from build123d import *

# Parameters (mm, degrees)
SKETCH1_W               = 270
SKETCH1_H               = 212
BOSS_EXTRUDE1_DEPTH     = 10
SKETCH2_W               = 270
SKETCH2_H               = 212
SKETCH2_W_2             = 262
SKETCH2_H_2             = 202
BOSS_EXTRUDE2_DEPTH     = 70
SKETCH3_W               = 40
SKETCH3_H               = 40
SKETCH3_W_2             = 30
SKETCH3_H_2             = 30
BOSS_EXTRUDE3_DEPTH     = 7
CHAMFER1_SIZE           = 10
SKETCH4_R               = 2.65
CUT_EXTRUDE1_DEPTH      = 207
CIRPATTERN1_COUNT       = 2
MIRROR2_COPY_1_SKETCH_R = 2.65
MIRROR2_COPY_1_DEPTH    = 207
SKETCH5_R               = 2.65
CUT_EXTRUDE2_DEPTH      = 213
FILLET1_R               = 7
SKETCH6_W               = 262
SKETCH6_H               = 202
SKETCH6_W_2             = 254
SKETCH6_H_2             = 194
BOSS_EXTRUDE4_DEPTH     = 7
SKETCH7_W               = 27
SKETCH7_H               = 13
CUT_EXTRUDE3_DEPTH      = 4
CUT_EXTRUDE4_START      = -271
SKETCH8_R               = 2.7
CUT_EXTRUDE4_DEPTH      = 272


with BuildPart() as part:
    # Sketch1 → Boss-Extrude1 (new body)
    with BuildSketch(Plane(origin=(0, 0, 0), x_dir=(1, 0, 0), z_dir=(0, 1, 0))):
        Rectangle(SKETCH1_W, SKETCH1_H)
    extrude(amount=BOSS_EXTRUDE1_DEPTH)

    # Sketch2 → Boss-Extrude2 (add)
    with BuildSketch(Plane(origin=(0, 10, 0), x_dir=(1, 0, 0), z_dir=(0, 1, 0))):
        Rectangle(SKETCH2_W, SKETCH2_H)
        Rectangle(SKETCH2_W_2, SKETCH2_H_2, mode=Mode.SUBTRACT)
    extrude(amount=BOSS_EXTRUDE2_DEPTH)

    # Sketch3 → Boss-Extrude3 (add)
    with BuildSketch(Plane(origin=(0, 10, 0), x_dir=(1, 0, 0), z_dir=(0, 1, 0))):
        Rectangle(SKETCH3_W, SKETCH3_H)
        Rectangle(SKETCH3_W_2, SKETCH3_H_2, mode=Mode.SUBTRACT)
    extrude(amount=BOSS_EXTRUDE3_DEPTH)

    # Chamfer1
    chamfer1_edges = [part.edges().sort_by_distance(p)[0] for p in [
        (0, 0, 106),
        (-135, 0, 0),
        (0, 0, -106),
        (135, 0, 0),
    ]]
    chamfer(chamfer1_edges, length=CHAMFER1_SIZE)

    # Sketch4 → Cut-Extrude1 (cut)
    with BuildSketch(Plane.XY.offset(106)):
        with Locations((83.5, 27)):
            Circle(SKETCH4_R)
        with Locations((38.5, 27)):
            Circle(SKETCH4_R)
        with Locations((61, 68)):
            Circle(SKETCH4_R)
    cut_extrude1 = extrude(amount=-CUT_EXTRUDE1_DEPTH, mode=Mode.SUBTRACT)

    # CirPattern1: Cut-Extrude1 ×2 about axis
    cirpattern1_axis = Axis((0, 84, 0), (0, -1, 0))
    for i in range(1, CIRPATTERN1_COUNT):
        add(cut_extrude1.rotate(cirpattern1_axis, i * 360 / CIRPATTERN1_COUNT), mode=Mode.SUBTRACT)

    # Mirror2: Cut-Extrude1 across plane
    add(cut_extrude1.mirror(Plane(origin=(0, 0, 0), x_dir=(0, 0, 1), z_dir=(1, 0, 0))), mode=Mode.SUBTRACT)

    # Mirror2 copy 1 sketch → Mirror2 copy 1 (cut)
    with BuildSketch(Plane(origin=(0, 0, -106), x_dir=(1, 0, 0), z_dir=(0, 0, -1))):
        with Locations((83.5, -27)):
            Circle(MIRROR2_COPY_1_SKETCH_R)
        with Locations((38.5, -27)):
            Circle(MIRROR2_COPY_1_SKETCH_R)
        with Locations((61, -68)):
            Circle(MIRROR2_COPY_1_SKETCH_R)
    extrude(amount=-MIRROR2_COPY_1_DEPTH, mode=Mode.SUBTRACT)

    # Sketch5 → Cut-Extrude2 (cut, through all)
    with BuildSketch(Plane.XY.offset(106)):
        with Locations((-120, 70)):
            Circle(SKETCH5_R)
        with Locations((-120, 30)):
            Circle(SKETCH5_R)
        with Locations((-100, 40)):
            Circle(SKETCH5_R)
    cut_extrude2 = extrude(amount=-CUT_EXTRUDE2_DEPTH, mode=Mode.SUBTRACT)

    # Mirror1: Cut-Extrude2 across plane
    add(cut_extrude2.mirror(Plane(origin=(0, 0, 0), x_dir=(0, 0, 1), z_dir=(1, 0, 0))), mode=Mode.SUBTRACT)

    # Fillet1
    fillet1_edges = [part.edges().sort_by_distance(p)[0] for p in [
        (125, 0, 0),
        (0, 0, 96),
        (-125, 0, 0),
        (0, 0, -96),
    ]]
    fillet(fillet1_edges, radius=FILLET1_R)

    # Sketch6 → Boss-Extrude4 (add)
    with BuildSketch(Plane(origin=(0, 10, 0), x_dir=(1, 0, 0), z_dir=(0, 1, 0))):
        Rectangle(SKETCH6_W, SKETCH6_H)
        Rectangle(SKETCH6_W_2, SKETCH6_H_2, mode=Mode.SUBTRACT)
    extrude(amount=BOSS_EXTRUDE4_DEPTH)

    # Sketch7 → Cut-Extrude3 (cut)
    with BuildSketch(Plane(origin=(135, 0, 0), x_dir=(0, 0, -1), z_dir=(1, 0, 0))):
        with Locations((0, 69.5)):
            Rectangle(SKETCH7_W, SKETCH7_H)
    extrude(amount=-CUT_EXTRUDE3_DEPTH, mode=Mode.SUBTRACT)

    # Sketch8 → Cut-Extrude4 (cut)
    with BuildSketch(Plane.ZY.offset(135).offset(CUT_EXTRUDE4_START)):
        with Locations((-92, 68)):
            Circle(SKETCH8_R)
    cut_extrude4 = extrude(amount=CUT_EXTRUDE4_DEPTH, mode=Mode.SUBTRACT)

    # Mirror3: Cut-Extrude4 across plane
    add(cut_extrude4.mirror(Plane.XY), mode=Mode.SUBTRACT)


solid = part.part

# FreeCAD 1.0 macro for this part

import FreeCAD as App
import Part
import Sketcher
Q = App.Units.Quantity


def edges_at(feature, points):
    """Names of the edges that pass closest to the given points."""
    edges = feature.Shape.Edges
    near = lambda p: min(range(len(edges)), key=lambda i: edges[i].distToShape(Part.Vertex(*p))[0])
    return sorted({f"Edge{near(p) + 1}" for p in points})

doc = App.newDocument("Part")
body = doc.addObject("PartDesign::Body", "Body")

sketch1 = body.newObject("Sketcher::SketchObject", "Sketch")
sketch1.AttachmentSupport = (doc.getObject("XZ_Plane"), [""])
sketch1.MapMode = "FlatFace"
sketch1.addGeometry([
    Part.LineSegment(App.Vector(-135, -106, 0), App.Vector(-135, 106, 0)),
    Part.LineSegment(App.Vector(-135, 106, 0), App.Vector(135, 106, 0)),
    Part.LineSegment(App.Vector(135, 106, 0), App.Vector(135, -106, 0)),
    Part.LineSegment(App.Vector(135, -106, 0), App.Vector(-135, -106, 0)),
], False)
sketch1.addConstraint([
    Sketcher.Constraint("Coincident", 0, 2, 1, 1),
    Sketcher.Constraint("Coincident", 1, 2, 2, 1),
    Sketcher.Constraint("Coincident", 2, 2, 3, 1),
    Sketcher.Constraint("Coincident", 3, 2, 0, 1),
    Sketcher.Constraint("Vertical", 0),
    Sketcher.Constraint("Horizontal", 1),
    Sketcher.Constraint("Vertical", 2),
    Sketcher.Constraint("Horizontal", 3),
    Sketcher.Constraint("Symmetric", 0, 2, 2, 2, -1, 1),
    Sketcher.Constraint("DistanceX", 1, 1, 1, 2, Q("270 mm")),
    Sketcher.Constraint("DistanceY", 0, 1, 0, 2, Q("212 mm")),
])
pad1 = body.newObject("PartDesign::Pad", "Pad")
pad1.Profile = sketch1
pad1.Length = 10
pad1.Reversed = True

sketch2 = body.newObject("Sketcher::SketchObject", "Sketch001")
sketch2.AttachmentSupport = (doc.getObject("XZ_Plane"), [""])
sketch2.MapMode = "FlatFace"
sketch2.AttachmentOffset = App.Placement(App.Vector(0, 0, -10), App.Rotation())
sketch2.addGeometry([
    Part.LineSegment(App.Vector(-135, -106, 0), App.Vector(-135, 106, 0)),
    Part.LineSegment(App.Vector(-135, 106, 0), App.Vector(135, 106, 0)),
    Part.LineSegment(App.Vector(135, 106, 0), App.Vector(135, -106, 0)),
    Part.LineSegment(App.Vector(135, -106, 0), App.Vector(-135, -106, 0)),
    Part.LineSegment(App.Vector(131, 101, 0), App.Vector(-131, 101, 0)),
    Part.LineSegment(App.Vector(-131, 101, 0), App.Vector(-131, -101, 0)),
    Part.LineSegment(App.Vector(-131, -101, 0), App.Vector(131, -101, 0)),
    Part.LineSegment(App.Vector(131, -101, 0), App.Vector(131, 101, 0)),
], False)
sketch2.addConstraint([
    Sketcher.Constraint("Coincident", 0, 2, 1, 1),
    Sketcher.Constraint("Coincident", 1, 2, 2, 1),
    Sketcher.Constraint("Coincident", 2, 2, 3, 1),
    Sketcher.Constraint("Coincident", 3, 2, 0, 1),
    Sketcher.Constraint("Coincident", 4, 2, 5, 1),
    Sketcher.Constraint("Coincident", 5, 2, 6, 1),
    Sketcher.Constraint("Coincident", 6, 2, 7, 1),
    Sketcher.Constraint("Coincident", 7, 2, 4, 1),
    Sketcher.Constraint("Vertical", 0),
    Sketcher.Constraint("Horizontal", 1),
    Sketcher.Constraint("Vertical", 2),
    Sketcher.Constraint("Horizontal", 3),
    Sketcher.Constraint("Horizontal", 4),
    Sketcher.Constraint("Vertical", 5),
    Sketcher.Constraint("Horizontal", 6),
    Sketcher.Constraint("Vertical", 7),
    Sketcher.Constraint("Symmetric", 0, 2, 2, 2, -1, 1),
    Sketcher.Constraint("Symmetric", 4, 2, 6, 2, -1, 1),
    Sketcher.Constraint("DistanceX", 1, 1, 1, 2, Q("270 mm")),
    Sketcher.Constraint("DistanceX", 4, 2, 4, 1, Q("262 mm")),
    Sketcher.Constraint("DistanceY", 0, 1, 0, 2, Q("212 mm")),
    Sketcher.Constraint("DistanceY", 5, 2, 5, 1, Q("202 mm")),
])
pad2 = body.newObject("PartDesign::Pad", "Pad001")
pad2.Profile = sketch2
pad2.Length = 70
pad2.Reversed = True

sketch3 = body.newObject("Sketcher::SketchObject", "Sketch002")
sketch3.AttachmentSupport = (doc.getObject("XZ_Plane"), [""])
sketch3.MapMode = "FlatFace"
sketch3.AttachmentOffset = App.Placement(App.Vector(0, 0, -10), App.Rotation())
sketch3.addGeometry([
    Part.LineSegment(App.Vector(-20, -20, 0), App.Vector(-20, 20, 0)),
    Part.LineSegment(App.Vector(-20, 20, 0), App.Vector(20, 20, 0)),
    Part.LineSegment(App.Vector(20, 20, 0), App.Vector(20, -20, 0)),
    Part.LineSegment(App.Vector(20, -20, 0), App.Vector(-20, -20, 0)),
    Part.LineSegment(App.Vector(15, 15, 0), App.Vector(-15, 15, 0)),
    Part.LineSegment(App.Vector(-15, 15, 0), App.Vector(-15, -15, 0)),
    Part.LineSegment(App.Vector(-15, -15, 0), App.Vector(15, -15, 0)),
    Part.LineSegment(App.Vector(15, -15, 0), App.Vector(15, 15, 0)),
], False)
sketch3.addConstraint([
    Sketcher.Constraint("Coincident", 0, 2, 1, 1),
    Sketcher.Constraint("Coincident", 1, 2, 2, 1),
    Sketcher.Constraint("Coincident", 2, 2, 3, 1),
    Sketcher.Constraint("Coincident", 3, 2, 0, 1),
    Sketcher.Constraint("Coincident", 4, 2, 5, 1),
    Sketcher.Constraint("Coincident", 5, 2, 6, 1),
    Sketcher.Constraint("Coincident", 6, 2, 7, 1),
    Sketcher.Constraint("Coincident", 7, 2, 4, 1),
    Sketcher.Constraint("Vertical", 0),
    Sketcher.Constraint("Horizontal", 1),
    Sketcher.Constraint("Vertical", 2),
    Sketcher.Constraint("Horizontal", 3),
    Sketcher.Constraint("Horizontal", 4),
    Sketcher.Constraint("Vertical", 5),
    Sketcher.Constraint("Horizontal", 6),
    Sketcher.Constraint("Vertical", 7),
    Sketcher.Constraint("Symmetric", 0, 2, 2, 2, -1, 1),
    Sketcher.Constraint("Symmetric", 4, 2, 6, 2, -1, 1),
    Sketcher.Constraint("Equal", 3, 0),
    Sketcher.Constraint("Equal", 6, 5),
    Sketcher.Constraint("DistanceX", 1, 1, 1, 2, Q("40 mm")),
    Sketcher.Constraint("DistanceX", 4, 2, 4, 1, Q("30 mm")),
])
pad3 = body.newObject("PartDesign::Pad", "Pad002")
pad3.Profile = sketch3
pad3.Length = 7
pad3.Reversed = True
doc.recompute()

chamfer = body.newObject("PartDesign::Chamfer", "Chamfer")
chamfer.Base = (pad3, edges_at(pad3, [
    (0, 0, 106),
    (-135, 0, 0),
    (0, 0, -106),
    (135, 0, 0),
]))
chamfer.Size = 10

sketch4 = body.newObject("Sketcher::SketchObject", "Sketch003")
sketch4.AttachmentSupport = (doc.getObject("XY_Plane"), [""])
sketch4.MapMode = "FlatFace"
sketch4.AttachmentOffset = App.Placement(App.Vector(0, 0, 106), App.Rotation())
sketch4.addGeometry([
    Part.Circle(App.Vector(83.5, 27, 0), App.Vector(0, 0, 1), 2.65),
    Part.Circle(App.Vector(38.5, 27, 0), App.Vector(0, 0, 1), 2.65),
    Part.Circle(App.Vector(61, 68, 0), App.Vector(0, 0, 1), 2.65),
], False)
sketch4.addConstraint([
    Sketcher.Constraint("Equal", 0, 1),
    Sketcher.Constraint("Equal", 1, 2),
    Sketcher.Constraint("Horizontal", 0, 3, 1, 3),
    Sketcher.Constraint("Diameter", 0, Q("5.3 mm")),
    Sketcher.Constraint("DistanceY", -1, 1, 0, 3, Q("27 mm")),
    Sketcher.Constraint("DistanceX", -1, 1, 2, 3, Q("61 mm")),
    Sketcher.Constraint("DistanceY", -1, 1, 2, 3, Q("68 mm")),
    Sketcher.Constraint("DistanceX", 1, 3, 0, 3, Q("45 mm")),
    Sketcher.Constraint("DistanceX", -1, 1, 0, 3, Q("83.5 mm")),
])
pocket1 = body.newObject("PartDesign::Pocket", "Pocket")
pocket1.Profile = sketch4
pocket1.Length = 207
doc.recompute()

polarpattern = body.newObject("PartDesign::PolarPattern", "PolarPattern")
polarpattern.Originals = [pocket1]
polarpattern.Axis = (doc.getObject("Y_Axis"), [""])
polarpattern.Angle = 360
polarpattern.Occurrences = 2
body.Tip = polarpattern
doc.recompute()

mirrored = body.newObject("PartDesign::Mirrored", "Mirrored")
mirrored.Originals = [pocket1]
mirrored.MirrorPlane = (doc.getObject("YZ_Plane"), [""])
body.Tip = mirrored

sketch5 = body.newObject("Sketcher::SketchObject", "Sketch004")
sketch5.AttachmentSupport = (doc.getObject("XY_Plane"), [""])
sketch5.MapMode = "FlatFace"
sketch5.AttachmentOffset = App.Placement(App.Vector(0, 0, -106), App.Rotation())
sketch5.addGeometry([
    Part.Circle(App.Vector(83.5, 27, 0), App.Vector(0, 0, 1), 2.65),
    Part.Circle(App.Vector(38.5, 27, 0), App.Vector(0, 0, 1), 2.65),
    Part.Circle(App.Vector(61, 68, 0), App.Vector(0, 0, 1), 2.65),
], False)
sketch5.addConstraint([
    Sketcher.Constraint("Equal", 0, 1),
    Sketcher.Constraint("Equal", 1, 2),
    Sketcher.Constraint("Horizontal", 0, 3, 1, 3),
    Sketcher.Constraint("Diameter", 0, Q("5.3 mm")),
    Sketcher.Constraint("DistanceY", -1, 1, 0, 3, Q("27 mm")),
    Sketcher.Constraint("DistanceX", -1, 1, 2, 3, Q("61 mm")),
    Sketcher.Constraint("DistanceY", -1, 1, 2, 3, Q("68 mm")),
    Sketcher.Constraint("DistanceX", 1, 3, 0, 3, Q("45 mm")),
    Sketcher.Constraint("DistanceX", -1, 1, 0, 3, Q("83.5 mm")),
])
pocket2 = body.newObject("PartDesign::Pocket", "Pocket001")
pocket2.Profile = sketch5
pocket2.Length = 207
pocket2.Reversed = True

sketch6 = body.newObject("Sketcher::SketchObject", "Sketch005")
sketch6.AttachmentSupport = (doc.getObject("XY_Plane"), [""])
sketch6.MapMode = "FlatFace"
sketch6.AttachmentOffset = App.Placement(App.Vector(0, 0, 106), App.Rotation())
sketch6.addGeometry([
    Part.Circle(App.Vector(-120, 70, 0), App.Vector(0, 0, 1), 2.65),
    Part.Circle(App.Vector(-120, 30, 0), App.Vector(0, 0, 1), 2.65),
    Part.Circle(App.Vector(-100, 40, 0), App.Vector(0, 0, 1), 2.65),
], False)
sketch6.addConstraint([
    Sketcher.Constraint("Equal", 0, 1),
    Sketcher.Constraint("Equal", 1, 2),
    Sketcher.Constraint("Vertical", 0, 3, 1, 3),
    Sketcher.Constraint("Diameter", 0, Q("5.3 mm")),
    Sketcher.Constraint("DistanceX", 0, 3, -1, 1, Q("120 mm")),
    Sketcher.Constraint("DistanceY", -1, 1, 0, 3, Q("70 mm")),
    Sketcher.Constraint("DistanceY", -1, 1, 1, 3, Q("30 mm")),
    Sketcher.Constraint("DistanceX", 2, 3, -1, 1, Q("100 mm")),
    Sketcher.Constraint("DistanceY", -1, 1, 2, 3, Q("40 mm")),
])
pocket3 = body.newObject("PartDesign::Pocket", "Pocket002")
pocket3.Profile = sketch6
pocket3.Type = "ThroughAll"
doc.recompute()

mirrored2 = body.newObject("PartDesign::Mirrored", "Mirrored001")
mirrored2.Originals = [pocket3]
mirrored2.MirrorPlane = (doc.getObject("YZ_Plane"), [""])
body.Tip = mirrored2
doc.recompute()

fillet = body.newObject("PartDesign::Fillet", "Fillet")
fillet.Base = (mirrored2, edges_at(mirrored2, [
    (125, 0, 0),
    (0, 0, 96),
    (-125, 0, 0),
    (0, 0, -96),
]))
fillet.Radius = 7

sketch7 = body.newObject("Sketcher::SketchObject", "Sketch006")
sketch7.AttachmentSupport = (doc.getObject("XZ_Plane"), [""])
sketch7.MapMode = "FlatFace"
sketch7.AttachmentOffset = App.Placement(App.Vector(0, 0, -10), App.Rotation())
sketch7.addGeometry([
    Part.LineSegment(App.Vector(-131, -101, 0), App.Vector(-131, 101, 0)),
    Part.LineSegment(App.Vector(-131, 101, 0), App.Vector(131, 101, 0)),
    Part.LineSegment(App.Vector(131, 101, 0), App.Vector(131, -101, 0)),
    Part.LineSegment(App.Vector(131, -101, 0), App.Vector(-131, -101, 0)),
    Part.LineSegment(App.Vector(127, 97, 0), App.Vector(-127, 97, 0)),
    Part.LineSegment(App.Vector(-127, 97, 0), App.Vector(-127, -97, 0)),
    Part.LineSegment(App.Vector(-127, -97, 0), App.Vector(127, -97, 0)),
    Part.LineSegment(App.Vector(127, -97, 0), App.Vector(127, 97, 0)),
], False)
sketch7.addConstraint([
    Sketcher.Constraint("Coincident", 0, 2, 1, 1),
    Sketcher.Constraint("Coincident", 1, 2, 2, 1),
    Sketcher.Constraint("Coincident", 2, 2, 3, 1),
    Sketcher.Constraint("Coincident", 3, 2, 0, 1),
    Sketcher.Constraint("Coincident", 4, 2, 5, 1),
    Sketcher.Constraint("Coincident", 5, 2, 6, 1),
    Sketcher.Constraint("Coincident", 6, 2, 7, 1),
    Sketcher.Constraint("Coincident", 7, 2, 4, 1),
    Sketcher.Constraint("Vertical", 0),
    Sketcher.Constraint("Horizontal", 1),
    Sketcher.Constraint("Vertical", 2),
    Sketcher.Constraint("Horizontal", 3),
    Sketcher.Constraint("Horizontal", 4),
    Sketcher.Constraint("Vertical", 5),
    Sketcher.Constraint("Horizontal", 6),
    Sketcher.Constraint("Vertical", 7),
    Sketcher.Constraint("Symmetric", 0, 2, 2, 2, -1, 1),
    Sketcher.Constraint("Symmetric", 4, 2, 6, 2, -1, 1),
    Sketcher.Constraint("DistanceX", 1, 1, 1, 2, Q("262 mm")),
    Sketcher.Constraint("DistanceX", 4, 2, 4, 1, Q("254 mm")),
    Sketcher.Constraint("DistanceY", 0, 1, 0, 2, Q("202 mm")),
    Sketcher.Constraint("DistanceY", 5, 2, 5, 1, Q("194 mm")),
])
pad4 = body.newObject("PartDesign::Pad", "Pad003")
pad4.Profile = sketch7
pad4.Length = 7
pad4.Reversed = True

sketch8 = body.newObject("Sketcher::SketchObject", "Sketch007")
sketch8.AttachmentSupport = (doc.getObject("YZ_Plane"), [""])
sketch8.MapMode = "FlatFace"
sketch8.AttachmentOffset = App.Placement(App.Vector(0, 0, 135), App.Rotation())
sketch8.addGeometry([
    Part.LineSegment(App.Vector(76, 13.5, 0), App.Vector(63, 13.5, 0)),
    Part.LineSegment(App.Vector(63, 13.5, 0), App.Vector(63, -13.5, 0)),
    Part.LineSegment(App.Vector(63, -13.5, 0), App.Vector(76, -13.5, 0)),
    Part.LineSegment(App.Vector(76, -13.5, 0), App.Vector(76, 13.5, 0)),
], False)
sketch8.addConstraint([
    Sketcher.Constraint("Coincident", 0, 2, 1, 1),
    Sketcher.Constraint("Coincident", 1, 2, 2, 1),
    Sketcher.Constraint("Coincident", 2, 2, 3, 1),
    Sketcher.Constraint("Coincident", 3, 2, 0, 1),
    Sketcher.Constraint("Horizontal", 0),
    Sketcher.Constraint("Vertical", 1),
    Sketcher.Constraint("Horizontal", 2),
    Sketcher.Constraint("Vertical", 3),
    Sketcher.Constraint("DistanceX", 0, 2, 0, 1, Q("13 mm")),
    Sketcher.Constraint("DistanceY", 1, 2, 1, 1, Q("27 mm")),
    Sketcher.Constraint("DistanceX", -1, 1, 0, 2, Q("63 mm")),
    Sketcher.Constraint("DistanceY", -1, 1, 0, 2, Q("13.5 mm")),
])
pocket4 = body.newObject("PartDesign::Pocket", "Pocket003")
pocket4.Profile = sketch8
pocket4.Length = 4

sketch9 = body.newObject("Sketcher::SketchObject", "Sketch008")
sketch9.AttachmentSupport = (doc.getObject("YZ_Plane"), [""])
sketch9.MapMode = "FlatFace"
sketch9.AttachmentOffset = App.Placement(App.Vector(0, 0, 136), App.Rotation())
sketch9.addGeometry(Part.Circle(App.Vector(68, -92, 0), App.Vector(0, 0, 1), 2.7), False)
sketch9.addConstraint([
    Sketcher.Constraint("Diameter", 0, Q("5.4 mm")),
    Sketcher.Constraint("DistanceX", -1, 1, 0, 3, Q("68 mm")),
    Sketcher.Constraint("DistanceY", 0, 3, -1, 1, Q("92 mm")),
])
pocket5 = body.newObject("PartDesign::Pocket", "Pocket004")
pocket5.Profile = sketch9
pocket5.Length = 272
doc.recompute()

mirrored3 = body.newObject("PartDesign::Mirrored", "Mirrored002")
mirrored3.Originals = [pocket5]
mirrored3.MirrorPlane = (doc.getObject("XY_Plane"), [""])
body.Tip = mirrored3

doc.recompute()
